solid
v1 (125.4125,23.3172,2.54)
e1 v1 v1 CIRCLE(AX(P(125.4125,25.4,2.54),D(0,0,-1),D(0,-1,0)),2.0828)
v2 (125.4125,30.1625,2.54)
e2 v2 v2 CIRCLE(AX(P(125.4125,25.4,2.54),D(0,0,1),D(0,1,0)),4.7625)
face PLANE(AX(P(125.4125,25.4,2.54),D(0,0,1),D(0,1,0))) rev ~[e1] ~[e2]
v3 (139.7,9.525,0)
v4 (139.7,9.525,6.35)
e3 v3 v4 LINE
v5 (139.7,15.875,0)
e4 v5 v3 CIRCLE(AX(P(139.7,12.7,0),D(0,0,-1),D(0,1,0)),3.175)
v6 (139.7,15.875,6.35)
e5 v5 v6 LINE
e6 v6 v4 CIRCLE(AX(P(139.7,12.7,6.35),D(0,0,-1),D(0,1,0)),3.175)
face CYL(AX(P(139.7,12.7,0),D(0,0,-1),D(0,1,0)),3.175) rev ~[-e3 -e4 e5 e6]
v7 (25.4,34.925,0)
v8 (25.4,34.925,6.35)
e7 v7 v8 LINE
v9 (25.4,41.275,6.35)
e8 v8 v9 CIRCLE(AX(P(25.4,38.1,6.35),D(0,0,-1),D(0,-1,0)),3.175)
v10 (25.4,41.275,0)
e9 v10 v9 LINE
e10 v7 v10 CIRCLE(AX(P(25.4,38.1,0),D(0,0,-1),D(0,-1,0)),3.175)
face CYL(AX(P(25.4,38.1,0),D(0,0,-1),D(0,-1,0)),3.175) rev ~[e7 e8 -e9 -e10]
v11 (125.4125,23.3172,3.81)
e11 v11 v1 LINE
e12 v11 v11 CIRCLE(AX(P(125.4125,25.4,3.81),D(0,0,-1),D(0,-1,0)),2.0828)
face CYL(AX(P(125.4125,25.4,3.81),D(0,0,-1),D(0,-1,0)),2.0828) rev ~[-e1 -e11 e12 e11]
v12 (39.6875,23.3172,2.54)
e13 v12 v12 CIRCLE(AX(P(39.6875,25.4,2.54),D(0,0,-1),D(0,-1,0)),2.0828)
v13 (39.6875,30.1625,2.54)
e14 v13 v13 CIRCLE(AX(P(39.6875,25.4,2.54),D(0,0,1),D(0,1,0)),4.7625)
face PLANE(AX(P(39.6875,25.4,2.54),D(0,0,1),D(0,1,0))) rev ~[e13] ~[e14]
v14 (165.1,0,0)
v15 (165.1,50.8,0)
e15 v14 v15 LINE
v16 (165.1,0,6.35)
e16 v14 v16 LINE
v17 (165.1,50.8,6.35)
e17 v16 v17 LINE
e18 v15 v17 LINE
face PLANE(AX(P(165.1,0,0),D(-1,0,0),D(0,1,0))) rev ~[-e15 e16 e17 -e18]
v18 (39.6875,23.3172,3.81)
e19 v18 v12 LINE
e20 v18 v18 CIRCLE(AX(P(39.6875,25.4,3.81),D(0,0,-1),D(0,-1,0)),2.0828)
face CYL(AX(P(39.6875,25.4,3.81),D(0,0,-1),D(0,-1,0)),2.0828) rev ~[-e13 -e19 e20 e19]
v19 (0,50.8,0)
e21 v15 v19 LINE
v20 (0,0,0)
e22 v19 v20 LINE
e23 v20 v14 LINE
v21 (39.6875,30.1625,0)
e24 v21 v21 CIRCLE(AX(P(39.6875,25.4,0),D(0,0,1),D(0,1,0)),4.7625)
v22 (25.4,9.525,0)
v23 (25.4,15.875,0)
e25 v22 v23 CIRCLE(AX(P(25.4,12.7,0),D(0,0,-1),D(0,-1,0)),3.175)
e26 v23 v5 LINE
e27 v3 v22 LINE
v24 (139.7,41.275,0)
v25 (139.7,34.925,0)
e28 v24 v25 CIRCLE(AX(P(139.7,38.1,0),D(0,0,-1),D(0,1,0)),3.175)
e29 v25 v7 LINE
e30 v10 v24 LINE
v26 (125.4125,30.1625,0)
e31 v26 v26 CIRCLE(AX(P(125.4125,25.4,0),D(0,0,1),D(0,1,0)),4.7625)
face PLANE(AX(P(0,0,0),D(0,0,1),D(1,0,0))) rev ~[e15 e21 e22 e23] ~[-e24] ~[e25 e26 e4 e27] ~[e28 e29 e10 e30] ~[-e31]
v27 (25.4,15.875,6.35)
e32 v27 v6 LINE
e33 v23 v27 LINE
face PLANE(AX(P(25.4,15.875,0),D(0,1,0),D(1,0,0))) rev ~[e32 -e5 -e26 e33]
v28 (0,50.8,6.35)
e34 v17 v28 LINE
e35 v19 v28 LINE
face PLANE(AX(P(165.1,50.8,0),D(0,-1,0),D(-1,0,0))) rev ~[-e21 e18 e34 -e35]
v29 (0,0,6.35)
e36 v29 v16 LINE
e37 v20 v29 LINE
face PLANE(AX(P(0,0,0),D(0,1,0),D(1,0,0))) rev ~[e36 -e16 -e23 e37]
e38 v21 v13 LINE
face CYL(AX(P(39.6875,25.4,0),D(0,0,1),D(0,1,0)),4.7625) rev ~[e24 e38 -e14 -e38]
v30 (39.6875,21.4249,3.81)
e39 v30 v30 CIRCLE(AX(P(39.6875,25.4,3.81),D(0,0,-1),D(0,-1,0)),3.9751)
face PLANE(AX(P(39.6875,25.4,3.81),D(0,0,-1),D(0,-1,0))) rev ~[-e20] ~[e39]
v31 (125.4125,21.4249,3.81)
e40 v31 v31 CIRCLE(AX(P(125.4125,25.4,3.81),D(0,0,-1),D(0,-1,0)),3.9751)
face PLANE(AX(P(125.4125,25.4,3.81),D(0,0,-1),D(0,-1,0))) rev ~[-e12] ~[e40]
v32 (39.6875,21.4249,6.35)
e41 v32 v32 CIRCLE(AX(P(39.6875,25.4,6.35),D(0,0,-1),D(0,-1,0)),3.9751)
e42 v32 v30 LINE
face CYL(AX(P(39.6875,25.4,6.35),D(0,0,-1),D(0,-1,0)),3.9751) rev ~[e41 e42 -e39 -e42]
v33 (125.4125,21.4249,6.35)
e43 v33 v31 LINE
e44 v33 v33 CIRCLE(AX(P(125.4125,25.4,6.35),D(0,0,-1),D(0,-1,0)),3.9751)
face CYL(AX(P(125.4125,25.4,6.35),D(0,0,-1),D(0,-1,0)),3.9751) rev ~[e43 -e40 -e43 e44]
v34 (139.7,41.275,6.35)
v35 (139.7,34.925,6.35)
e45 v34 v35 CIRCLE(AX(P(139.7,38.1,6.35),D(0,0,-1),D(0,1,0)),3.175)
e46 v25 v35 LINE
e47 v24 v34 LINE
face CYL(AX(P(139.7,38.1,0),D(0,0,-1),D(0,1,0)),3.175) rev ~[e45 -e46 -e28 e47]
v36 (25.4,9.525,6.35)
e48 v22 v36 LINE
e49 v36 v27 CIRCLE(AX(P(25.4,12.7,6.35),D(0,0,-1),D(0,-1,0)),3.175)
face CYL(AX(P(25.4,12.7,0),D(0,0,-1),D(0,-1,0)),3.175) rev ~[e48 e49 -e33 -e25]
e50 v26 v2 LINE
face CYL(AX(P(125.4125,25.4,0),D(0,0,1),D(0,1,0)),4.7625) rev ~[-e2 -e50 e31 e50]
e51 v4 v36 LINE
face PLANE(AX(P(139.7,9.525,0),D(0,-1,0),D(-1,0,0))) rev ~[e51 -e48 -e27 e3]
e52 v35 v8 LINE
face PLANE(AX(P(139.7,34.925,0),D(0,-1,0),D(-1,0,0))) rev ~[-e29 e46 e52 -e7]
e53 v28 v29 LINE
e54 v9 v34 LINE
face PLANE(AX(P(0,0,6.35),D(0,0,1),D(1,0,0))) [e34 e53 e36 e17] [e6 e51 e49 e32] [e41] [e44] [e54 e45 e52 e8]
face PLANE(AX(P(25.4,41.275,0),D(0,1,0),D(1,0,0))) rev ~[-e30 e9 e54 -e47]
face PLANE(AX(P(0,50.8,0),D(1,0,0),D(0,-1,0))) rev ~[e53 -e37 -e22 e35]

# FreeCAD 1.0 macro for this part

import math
import FreeCAD as App
import Part
import Sketcher

V = App.Vector
Q = App.Units.Quantity

doc = App.newDocument("Part")
body = doc.addObject("PartDesign::Body", "Body")

# Sketch on XY plane
sketch1 = body.newObject("Sketcher::SketchObject", "Sketch")
sketch1.AttachmentSupport = (doc.getObject("XY_Plane"), [""])
sketch1.MapMode = "FlatFace"
sketch1.addGeometry([
    Part.LineSegment(V(0, 50.8, 0), V(0, 0, 0)),
    Part.LineSegment(V(0, 0, 0), V(165.1, 0, 0)),
    Part.LineSegment(V(165.1, 0, 0), V(165.1, 50.8, 0)),
    Part.LineSegment(V(165.1, 50.8, 0), V(0, 50.8, 0)),
], False)
sketch1.addConstraint([
    Sketcher.Constraint("Coincident", 0, 2, 1, 1),
    Sketcher.Constraint("Coincident", 1, 2, 2, 1),
    Sketcher.Constraint("Coincident", 2, 2, 3, 1),
    Sketcher.Constraint("Coincident", 3, 2, 0, 1),
    Sketcher.Constraint("Vertical", 0),
    Sketcher.Constraint("Horizontal", 1),
    Sketcher.Constraint("Vertical", 2),
    Sketcher.Constraint("Horizontal", 3),
    Sketcher.Constraint("Coincident", 0, 2, -1, 1),
    Sketcher.Constraint("DistanceY", 0, 2, 0, 1, Q("2 in")),
    Sketcher.Constraint("DistanceX", 1, 1, 1, 2, Q("6.5 in")),
])
pad1 = body.newObject("PartDesign::Pad", "Pad")
pad1.Profile = sketch1
pad1.Length = Q("0.25 in")

# Sketch on XY plane
sketch2 = body.newObject("Sketcher::SketchObject", "Sketch001")
sketch2.AttachmentSupport = (doc.getObject("XY_Plane"), [""])
sketch2.MapMode = "FlatFace"
sketch2.AttachmentOffset = App.Placement(V(0, 0, 0.25 * 25.4), App.Rotation())
sketch2.addGeometry([
    Part.Circle(V(39.6875, 25.4, 0), V(0, 0, 1), 2.0828),
    Part.Circle(V(125.4125, 25.4, 0), V(0, 0, 1), 2.0828),
], False)
sketch2.addConstraint([
    Sketcher.Constraint("Equal", 0, 1),
    Sketcher.Constraint("Horizontal", 0, 3, 1, 3),
    Sketcher.Constraint("Diameter", 0, Q("0.164 in")),
    Sketcher.Constraint("DistanceY", -1, 1, 0, 3, Q("1 in")),
    Sketcher.Constraint("DistanceX", -1, 1, 0, 3, Q("1.5625 in")),
    Sketcher.Constraint("DistanceX", -1, 1, 1, 3, Q("4.9375 in")),
])
doc.recompute()
hole = body.newObject("PartDesign::Hole", "Hole")
hole.Profile = sketch2
hole.ThreadType = "None"
hole.Diameter = Q("0.164 in")
hole.DepthType = "Dimension"
hole.Depth = Q("0.25 in")
hole.DrillPoint = "Angled"
hole.DrillPointAngle = 118
hole.HoleCutType = "Counterbore"
hole.HoleCutDiameter = Q("0.313 in")
hole.HoleCutDepth = Q("0.1 in")

# Sketch on XY plane
sketch3 = body.newObject("Sketcher::SketchObject", "Sketch002")
sketch3.AttachmentSupport = (doc.getObject("XY_Plane"), [""])
sketch3.MapMode = "FlatFace"
sketch3.addGeometry([
    Part.ArcOfCircle(Part.Circle(V(139.7, 12.7, 0), V(0, 0, 1), 3.175), math.radians(-90), math.radians(90)),  # 0
    Part.LineSegment(V(139.7, 9.525, 0), V(25.4, 9.525, 0)),  # 1
    Part.ArcOfCircle(Part.Circle(V(25.4, 12.7, 0), V(0, 0, 1), 3.175), math.radians(90), math.radians(270)),  # 2
    Part.LineSegment(V(25.4, 15.875, 0), V(139.7, 15.875, 0)),  # 3
    Part.ArcOfCircle(Part.Circle(V(139.7, 38.1, 0), V(0, 0, 1), 3.175), math.radians(-90), math.radians(90)),  # 4
    Part.LineSegment(V(139.7, 34.925, 0), V(25.4, 34.925, 0)),  # 5
    Part.ArcOfCircle(Part.Circle(V(25.4, 38.1, 0), V(0, 0, 1), 3.175), math.radians(90), math.radians(270)),  # 6
    Part.LineSegment(V(25.4, 41.275, 0), V(139.7, 41.275, 0)),  # 7
], False)
sketch3.addConstraint([
    Sketcher.Constraint("Tangent", 0, 1, 1, 1),
    Sketcher.Constraint("Tangent", 1, 2, 2, 2),
    Sketcher.Constraint("Tangent", 2, 1, 3, 1),
    Sketcher.Constraint("Tangent", 3, 2, 0, 2),
    Sketcher.Constraint("Tangent", 4, 1, 5, 1),
    Sketcher.Constraint("Tangent", 5, 2, 6, 2),
    Sketcher.Constraint("Tangent", 6, 1, 7, 1),
    Sketcher.Constraint("Tangent", 7, 2, 4, 2),
    Sketcher.Constraint("Horizontal", 1),
    Sketcher.Constraint("Horizontal", 3),
    Sketcher.Constraint("Horizontal", 5),
    Sketcher.Constraint("Horizontal", 7),
    Sketcher.Constraint("Equal", 2, 4),
    Sketcher.Constraint("Vertical", 0, 3, 4, 3),
    Sketcher.Constraint("Vertical", 2, 3, 6, 3),
    Sketcher.Constraint("DistanceX", 1, 2, 1, 1, Q("4.5 in")),
    Sketcher.Constraint("DistanceX", -1, 1, 2, 3, Q("1 in")),
    Sketcher.Constraint("Radius", 0, Q("0.125 in")),
    Sketcher.Constraint("DistanceY", 0, 3, 4, 3, Q("1 in")),
    Sketcher.Constraint("DistanceY", -1, 1, 0, 3, Q("0.5 in")),
])
pocket1 = body.newObject("PartDesign::Pocket", "Pocket")
pocket1.Profile = sketch3
pocket1.Length = Q("0.25 in")
pocket1.Reversed = True

# Sketch on XY plane
sketch4 = body.newObject("Sketcher::SketchObject", "Sketch003")
sketch4.AttachmentSupport = (doc.getObject("XY_Plane"), [""])
sketch4.MapMode = "FlatFace"
sketch4.addGeometry([
    Part.Circle(V(39.6875, 25.4, 0), V(0, 0, 1), 4.7625),
    Part.Circle(V(125.4125, 25.4, 0), V(0, 0, 1), 4.7625),
], False)
sketch4.addConstraint([
    Sketcher.Constraint("Equal", 0, 1),
    Sketcher.Constraint("Horizontal", 0, 3, 1, 3),
    Sketcher.Constraint("Diameter", 0, Q("0.375 in")),
    Sketcher.Constraint("DistanceY", -1, 1, 0, 3, Q("1 in")),
    Sketcher.Constraint("DistanceX", -1, 1, 0, 3, Q("1.5625 in")),
    Sketcher.Constraint("DistanceX", -1, 1, 1, 3, Q("4.9375 in")),
])
doc.recompute()
hole2 = body.newObject("PartDesign::Hole", "Hole001")
hole2.Profile = sketch4
hole2.ThreadType = "None"
hole2.Diameter = Q("0.375 in")
hole2.DepthType = "Dimension"
hole2.Depth = Q("0.1 in")
hole2.DrillPoint = "Flat"
hole2.Reversed = True

doc.recompute()
